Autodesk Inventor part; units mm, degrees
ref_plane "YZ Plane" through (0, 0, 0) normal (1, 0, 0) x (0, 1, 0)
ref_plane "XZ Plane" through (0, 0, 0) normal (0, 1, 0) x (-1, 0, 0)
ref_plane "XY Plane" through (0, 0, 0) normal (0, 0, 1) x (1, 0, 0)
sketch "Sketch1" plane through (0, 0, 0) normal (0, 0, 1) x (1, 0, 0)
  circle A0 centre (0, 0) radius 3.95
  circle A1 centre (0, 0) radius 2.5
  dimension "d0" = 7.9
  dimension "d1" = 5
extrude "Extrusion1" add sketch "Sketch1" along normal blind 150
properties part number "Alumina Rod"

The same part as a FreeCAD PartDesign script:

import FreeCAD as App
import Part
import Sketcher

doc = App.newDocument("Part")
params = doc.addObject("Spreadsheet::Sheet", "Params")
for row, (alias, value) in enumerate([
    ("sketch1_diameter", "5 mm"),
    ("sketch1_diameter2", "7.9 mm"),
    ("pad1_length", "150 mm"),
], start=1):
    params.set(f"A{row}", alias)
    params.set(f"B{row}", "=" + value)
    params.setAlias(f"B{row}", alias)

body = doc.addObject("PartDesign::Body", "Body")

sketch1 = body.newObject("Sketcher::SketchObject", "Sketch")
sketch1.AttachmentSupport = (doc.getObject("XY_Plane"), [""])
sketch1.MapMode = "FlatFace"
sketch1.addGeometry(Part.Circle(App.Vector(0, 0, 0), App.Vector(0, 0, 1), 4), False)
sketch1.addGeometry(Part.Circle(App.Vector(0, 0, 0), App.Vector(0, 0, 1), 2.5), False)
sketch1.addConstraint(Sketcher.Constraint("Coincident", 0, 3, -1, 1))
sketch1.addConstraint(Sketcher.Constraint("Coincident", 1, 3, -1, 1))
sketch1.addConstraint(Sketcher.Constraint("Diameter", 1, 5.0))
sketch1.addConstraint(Sketcher.Constraint("Diameter", 0, 7.9))
sketch1.setExpression("Constraints[2]", "Params.sketch1_diameter")
sketch1.setExpression("Constraints[3]", "Params.sketch1_diameter2")
pad1 = body.newObject("PartDesign::Pad", "Pad")
pad1.Profile = sketch1
pad1.setExpression("Length", "Params.pad1_length")

doc.recompute()
